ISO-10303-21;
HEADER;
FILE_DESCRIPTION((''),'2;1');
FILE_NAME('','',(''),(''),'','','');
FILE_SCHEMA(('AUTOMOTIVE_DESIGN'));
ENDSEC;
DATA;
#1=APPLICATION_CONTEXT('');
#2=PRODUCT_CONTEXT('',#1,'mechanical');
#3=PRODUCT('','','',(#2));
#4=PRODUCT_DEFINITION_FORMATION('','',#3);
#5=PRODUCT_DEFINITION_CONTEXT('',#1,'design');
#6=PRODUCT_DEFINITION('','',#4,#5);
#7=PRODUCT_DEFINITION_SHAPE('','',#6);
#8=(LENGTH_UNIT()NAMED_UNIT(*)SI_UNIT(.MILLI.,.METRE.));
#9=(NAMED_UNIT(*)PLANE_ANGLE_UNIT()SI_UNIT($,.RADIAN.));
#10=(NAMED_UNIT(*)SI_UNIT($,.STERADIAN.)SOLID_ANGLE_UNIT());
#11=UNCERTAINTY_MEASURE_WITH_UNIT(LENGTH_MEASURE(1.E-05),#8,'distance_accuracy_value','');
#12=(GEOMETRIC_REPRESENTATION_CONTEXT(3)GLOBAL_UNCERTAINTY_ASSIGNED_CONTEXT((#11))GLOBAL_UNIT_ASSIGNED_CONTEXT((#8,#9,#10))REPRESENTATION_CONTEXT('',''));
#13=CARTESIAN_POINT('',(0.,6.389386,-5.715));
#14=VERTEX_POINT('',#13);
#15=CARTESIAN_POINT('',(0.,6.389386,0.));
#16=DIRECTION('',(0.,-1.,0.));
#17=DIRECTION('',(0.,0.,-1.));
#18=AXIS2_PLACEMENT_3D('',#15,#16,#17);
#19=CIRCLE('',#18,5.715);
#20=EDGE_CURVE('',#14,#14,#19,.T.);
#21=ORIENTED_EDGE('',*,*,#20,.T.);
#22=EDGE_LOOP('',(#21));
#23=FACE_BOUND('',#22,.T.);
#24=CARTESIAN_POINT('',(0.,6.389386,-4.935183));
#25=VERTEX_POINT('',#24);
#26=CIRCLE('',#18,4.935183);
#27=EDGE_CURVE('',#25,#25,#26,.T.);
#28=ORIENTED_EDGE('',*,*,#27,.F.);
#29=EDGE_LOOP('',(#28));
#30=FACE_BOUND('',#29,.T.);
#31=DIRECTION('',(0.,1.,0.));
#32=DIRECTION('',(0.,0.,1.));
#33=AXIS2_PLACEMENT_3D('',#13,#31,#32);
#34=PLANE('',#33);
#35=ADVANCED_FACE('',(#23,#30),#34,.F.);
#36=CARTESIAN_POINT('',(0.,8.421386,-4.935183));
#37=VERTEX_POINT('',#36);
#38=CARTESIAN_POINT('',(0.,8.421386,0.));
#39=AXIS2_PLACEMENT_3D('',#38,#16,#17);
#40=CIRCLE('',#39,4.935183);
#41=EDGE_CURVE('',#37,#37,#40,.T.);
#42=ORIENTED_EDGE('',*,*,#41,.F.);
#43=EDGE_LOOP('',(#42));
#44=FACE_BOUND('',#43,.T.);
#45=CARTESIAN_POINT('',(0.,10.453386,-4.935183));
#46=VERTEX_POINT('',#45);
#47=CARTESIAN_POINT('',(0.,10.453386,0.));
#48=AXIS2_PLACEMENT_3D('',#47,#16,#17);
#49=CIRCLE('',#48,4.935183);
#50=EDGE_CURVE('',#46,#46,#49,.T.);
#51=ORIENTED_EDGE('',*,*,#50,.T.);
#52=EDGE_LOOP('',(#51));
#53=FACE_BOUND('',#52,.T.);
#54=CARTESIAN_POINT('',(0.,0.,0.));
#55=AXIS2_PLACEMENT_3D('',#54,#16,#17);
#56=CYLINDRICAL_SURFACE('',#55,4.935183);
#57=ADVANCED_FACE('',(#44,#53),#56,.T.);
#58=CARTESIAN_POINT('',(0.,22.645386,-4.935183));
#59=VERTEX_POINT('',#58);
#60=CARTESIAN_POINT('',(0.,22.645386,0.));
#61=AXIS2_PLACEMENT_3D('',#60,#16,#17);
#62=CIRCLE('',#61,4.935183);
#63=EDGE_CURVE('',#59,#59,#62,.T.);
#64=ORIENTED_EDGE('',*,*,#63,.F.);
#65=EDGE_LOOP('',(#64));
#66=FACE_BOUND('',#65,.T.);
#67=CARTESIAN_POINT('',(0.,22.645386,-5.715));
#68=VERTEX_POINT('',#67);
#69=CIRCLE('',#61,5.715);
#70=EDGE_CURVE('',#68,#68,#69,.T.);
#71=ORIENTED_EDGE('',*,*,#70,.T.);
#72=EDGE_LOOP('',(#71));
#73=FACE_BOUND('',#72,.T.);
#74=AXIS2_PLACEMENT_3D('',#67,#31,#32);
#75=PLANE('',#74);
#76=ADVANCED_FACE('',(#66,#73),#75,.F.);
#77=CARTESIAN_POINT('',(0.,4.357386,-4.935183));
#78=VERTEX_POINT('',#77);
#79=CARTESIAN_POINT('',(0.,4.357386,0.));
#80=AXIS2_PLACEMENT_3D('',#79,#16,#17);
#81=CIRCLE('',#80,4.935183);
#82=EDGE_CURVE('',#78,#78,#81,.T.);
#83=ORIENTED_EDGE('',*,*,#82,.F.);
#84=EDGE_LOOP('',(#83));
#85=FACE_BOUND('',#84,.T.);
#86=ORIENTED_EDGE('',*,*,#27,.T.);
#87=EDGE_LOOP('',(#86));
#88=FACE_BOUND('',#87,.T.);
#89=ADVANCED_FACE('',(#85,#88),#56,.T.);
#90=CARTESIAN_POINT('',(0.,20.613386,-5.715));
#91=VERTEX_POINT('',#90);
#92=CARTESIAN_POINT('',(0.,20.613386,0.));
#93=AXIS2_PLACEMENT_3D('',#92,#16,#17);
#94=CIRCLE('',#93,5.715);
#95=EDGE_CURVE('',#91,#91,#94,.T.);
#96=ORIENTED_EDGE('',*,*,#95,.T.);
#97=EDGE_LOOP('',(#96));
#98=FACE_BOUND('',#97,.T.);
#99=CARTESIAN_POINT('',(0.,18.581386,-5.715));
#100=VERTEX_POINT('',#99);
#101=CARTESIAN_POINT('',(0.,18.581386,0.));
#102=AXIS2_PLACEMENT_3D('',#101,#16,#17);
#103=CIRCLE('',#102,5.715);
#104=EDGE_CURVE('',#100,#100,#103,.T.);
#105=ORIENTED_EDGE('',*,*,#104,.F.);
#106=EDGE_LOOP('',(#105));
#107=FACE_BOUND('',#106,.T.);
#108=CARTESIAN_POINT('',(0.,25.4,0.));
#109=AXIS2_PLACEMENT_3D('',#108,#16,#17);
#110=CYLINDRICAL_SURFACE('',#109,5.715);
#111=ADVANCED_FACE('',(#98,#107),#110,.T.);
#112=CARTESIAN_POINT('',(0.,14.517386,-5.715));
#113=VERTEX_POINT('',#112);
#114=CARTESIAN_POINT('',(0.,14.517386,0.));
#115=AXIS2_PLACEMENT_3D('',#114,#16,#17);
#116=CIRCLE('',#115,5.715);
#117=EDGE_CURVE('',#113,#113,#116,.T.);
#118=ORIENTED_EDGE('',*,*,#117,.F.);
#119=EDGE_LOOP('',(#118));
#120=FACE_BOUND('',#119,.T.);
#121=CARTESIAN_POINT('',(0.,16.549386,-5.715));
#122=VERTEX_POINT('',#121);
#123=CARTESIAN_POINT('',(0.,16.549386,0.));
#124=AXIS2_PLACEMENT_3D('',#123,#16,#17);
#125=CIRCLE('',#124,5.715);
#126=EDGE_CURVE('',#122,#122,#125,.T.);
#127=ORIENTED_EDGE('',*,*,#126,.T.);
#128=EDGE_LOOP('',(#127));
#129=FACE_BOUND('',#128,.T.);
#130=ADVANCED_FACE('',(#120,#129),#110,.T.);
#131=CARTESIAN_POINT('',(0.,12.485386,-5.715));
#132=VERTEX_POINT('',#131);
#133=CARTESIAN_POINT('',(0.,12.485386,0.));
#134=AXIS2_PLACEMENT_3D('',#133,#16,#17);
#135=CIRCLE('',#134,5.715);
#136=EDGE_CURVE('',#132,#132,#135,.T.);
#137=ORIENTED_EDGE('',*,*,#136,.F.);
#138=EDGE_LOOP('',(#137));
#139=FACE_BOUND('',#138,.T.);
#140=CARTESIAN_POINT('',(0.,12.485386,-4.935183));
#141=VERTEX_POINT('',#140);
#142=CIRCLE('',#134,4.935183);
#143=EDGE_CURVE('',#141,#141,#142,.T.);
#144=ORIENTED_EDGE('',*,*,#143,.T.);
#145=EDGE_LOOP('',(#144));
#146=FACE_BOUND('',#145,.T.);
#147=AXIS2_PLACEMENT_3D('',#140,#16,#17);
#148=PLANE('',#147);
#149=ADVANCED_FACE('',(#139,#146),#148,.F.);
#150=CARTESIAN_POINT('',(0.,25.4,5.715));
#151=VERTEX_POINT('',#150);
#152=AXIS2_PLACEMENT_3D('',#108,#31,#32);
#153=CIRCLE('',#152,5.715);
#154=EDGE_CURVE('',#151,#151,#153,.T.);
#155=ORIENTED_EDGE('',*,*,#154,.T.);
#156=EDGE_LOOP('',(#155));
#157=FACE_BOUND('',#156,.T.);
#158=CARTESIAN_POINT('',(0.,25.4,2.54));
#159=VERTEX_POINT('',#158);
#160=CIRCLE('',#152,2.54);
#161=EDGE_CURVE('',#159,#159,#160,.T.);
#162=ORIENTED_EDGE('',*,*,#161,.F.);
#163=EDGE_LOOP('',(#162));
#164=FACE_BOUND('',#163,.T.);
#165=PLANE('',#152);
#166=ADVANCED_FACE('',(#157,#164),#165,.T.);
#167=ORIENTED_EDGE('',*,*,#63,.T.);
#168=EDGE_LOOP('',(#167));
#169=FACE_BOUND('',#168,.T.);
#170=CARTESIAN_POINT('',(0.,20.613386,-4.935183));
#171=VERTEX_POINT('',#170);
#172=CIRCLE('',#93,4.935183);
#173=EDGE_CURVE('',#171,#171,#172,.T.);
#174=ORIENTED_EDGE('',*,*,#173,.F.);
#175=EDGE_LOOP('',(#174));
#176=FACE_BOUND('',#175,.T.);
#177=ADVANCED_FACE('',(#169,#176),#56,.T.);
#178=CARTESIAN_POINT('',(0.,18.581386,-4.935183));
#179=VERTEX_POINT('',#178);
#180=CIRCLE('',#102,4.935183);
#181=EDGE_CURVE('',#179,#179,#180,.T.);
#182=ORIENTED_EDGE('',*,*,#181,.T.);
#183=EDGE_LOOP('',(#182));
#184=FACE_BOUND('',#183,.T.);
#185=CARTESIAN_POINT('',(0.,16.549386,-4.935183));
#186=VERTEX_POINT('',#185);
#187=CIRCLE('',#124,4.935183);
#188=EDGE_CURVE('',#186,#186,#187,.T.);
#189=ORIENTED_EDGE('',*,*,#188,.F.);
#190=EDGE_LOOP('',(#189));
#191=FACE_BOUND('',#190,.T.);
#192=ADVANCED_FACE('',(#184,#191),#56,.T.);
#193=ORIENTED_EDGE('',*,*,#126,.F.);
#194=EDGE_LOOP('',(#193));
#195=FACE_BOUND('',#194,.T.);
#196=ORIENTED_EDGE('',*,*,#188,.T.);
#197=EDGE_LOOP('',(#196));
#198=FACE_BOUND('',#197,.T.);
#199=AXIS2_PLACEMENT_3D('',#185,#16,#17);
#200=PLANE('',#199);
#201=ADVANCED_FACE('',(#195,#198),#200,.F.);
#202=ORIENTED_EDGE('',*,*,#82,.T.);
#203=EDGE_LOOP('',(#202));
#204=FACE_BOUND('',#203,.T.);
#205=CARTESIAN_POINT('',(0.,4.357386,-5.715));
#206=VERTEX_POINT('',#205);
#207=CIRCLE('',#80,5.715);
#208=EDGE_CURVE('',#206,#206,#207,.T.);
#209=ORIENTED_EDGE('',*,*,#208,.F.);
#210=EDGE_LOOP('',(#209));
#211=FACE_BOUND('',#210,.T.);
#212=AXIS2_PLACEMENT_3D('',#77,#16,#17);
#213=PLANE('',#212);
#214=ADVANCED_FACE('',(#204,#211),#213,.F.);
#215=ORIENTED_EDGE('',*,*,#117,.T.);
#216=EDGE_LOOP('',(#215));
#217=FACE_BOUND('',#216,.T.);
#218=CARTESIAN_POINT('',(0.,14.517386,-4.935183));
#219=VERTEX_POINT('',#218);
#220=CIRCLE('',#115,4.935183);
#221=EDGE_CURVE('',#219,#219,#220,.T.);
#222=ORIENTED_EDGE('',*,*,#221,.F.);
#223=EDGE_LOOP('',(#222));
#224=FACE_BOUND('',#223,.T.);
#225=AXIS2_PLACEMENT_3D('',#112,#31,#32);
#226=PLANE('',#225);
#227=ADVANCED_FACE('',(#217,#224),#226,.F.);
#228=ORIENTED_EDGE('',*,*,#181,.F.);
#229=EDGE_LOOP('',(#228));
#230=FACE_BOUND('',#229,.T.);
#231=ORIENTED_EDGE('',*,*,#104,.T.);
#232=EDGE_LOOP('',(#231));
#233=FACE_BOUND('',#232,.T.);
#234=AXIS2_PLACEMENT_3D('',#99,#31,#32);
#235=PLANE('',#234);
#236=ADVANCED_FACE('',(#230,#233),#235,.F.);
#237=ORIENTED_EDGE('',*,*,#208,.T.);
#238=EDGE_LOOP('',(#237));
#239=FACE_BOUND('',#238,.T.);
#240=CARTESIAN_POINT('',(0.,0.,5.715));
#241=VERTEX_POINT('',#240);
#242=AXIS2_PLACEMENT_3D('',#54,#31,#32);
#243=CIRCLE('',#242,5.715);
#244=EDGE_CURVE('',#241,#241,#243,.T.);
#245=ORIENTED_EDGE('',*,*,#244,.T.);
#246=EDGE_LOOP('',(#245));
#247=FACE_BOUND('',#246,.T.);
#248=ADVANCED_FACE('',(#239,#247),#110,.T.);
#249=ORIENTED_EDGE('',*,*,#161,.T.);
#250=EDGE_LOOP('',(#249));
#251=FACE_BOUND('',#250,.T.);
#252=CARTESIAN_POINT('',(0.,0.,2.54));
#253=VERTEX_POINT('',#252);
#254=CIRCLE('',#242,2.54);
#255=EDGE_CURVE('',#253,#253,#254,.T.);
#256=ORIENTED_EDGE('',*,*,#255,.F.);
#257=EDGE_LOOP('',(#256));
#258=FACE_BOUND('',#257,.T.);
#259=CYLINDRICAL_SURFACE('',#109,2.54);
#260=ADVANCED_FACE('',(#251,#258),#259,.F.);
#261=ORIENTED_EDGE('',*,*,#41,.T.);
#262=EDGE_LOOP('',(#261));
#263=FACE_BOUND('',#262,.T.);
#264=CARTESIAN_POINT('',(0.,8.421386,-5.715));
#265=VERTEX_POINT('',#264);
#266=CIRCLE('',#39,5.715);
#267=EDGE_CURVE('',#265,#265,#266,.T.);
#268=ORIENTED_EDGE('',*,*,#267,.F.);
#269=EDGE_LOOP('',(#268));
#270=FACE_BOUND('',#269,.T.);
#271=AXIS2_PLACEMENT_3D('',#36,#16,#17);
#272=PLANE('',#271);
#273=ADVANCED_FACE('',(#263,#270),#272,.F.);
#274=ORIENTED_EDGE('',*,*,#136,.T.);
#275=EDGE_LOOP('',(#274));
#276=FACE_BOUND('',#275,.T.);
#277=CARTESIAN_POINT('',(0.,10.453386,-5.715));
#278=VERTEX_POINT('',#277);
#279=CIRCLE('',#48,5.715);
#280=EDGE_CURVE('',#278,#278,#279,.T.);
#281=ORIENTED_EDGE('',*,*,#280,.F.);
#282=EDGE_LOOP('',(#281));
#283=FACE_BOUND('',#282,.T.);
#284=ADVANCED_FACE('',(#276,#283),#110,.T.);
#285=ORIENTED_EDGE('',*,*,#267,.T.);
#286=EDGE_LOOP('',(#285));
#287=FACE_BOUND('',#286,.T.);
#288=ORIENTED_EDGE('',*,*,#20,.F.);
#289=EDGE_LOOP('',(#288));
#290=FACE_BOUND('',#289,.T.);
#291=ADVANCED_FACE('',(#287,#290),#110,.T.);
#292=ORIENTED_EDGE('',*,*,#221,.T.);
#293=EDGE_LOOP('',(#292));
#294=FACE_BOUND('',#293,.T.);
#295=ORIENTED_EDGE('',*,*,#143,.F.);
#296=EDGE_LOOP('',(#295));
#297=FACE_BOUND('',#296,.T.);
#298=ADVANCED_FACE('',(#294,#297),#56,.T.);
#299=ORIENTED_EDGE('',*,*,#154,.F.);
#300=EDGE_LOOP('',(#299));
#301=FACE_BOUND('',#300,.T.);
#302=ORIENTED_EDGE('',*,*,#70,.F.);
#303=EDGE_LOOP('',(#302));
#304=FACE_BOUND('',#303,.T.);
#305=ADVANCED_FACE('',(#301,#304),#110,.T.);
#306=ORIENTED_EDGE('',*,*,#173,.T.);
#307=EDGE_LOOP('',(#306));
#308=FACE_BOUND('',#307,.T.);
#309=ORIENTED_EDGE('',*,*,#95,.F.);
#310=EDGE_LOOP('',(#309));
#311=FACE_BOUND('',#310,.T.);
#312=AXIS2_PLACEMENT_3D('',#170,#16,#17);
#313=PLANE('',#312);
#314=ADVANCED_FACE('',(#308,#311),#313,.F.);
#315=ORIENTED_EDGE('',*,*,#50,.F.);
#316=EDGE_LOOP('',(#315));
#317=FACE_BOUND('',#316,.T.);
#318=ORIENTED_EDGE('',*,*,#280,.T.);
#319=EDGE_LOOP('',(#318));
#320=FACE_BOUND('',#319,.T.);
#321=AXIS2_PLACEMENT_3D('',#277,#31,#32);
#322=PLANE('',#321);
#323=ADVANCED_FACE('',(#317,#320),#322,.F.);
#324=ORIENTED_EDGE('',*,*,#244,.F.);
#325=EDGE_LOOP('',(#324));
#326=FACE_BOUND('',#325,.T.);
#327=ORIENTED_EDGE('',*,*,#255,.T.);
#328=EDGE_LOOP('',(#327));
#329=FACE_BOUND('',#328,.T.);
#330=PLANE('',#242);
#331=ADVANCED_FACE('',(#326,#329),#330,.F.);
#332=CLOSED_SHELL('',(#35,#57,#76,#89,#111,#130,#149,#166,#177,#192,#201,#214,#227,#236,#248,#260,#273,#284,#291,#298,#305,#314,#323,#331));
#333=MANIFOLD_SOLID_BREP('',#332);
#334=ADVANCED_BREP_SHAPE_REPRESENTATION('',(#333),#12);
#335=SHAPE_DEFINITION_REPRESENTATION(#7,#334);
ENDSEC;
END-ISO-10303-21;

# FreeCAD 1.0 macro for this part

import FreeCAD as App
import Part
import Sketcher
from FreeCAD import Vector
Q = App.Units.Quantity


def add_polygon(sketch, points):
    """Adds a closed chain of lines whose ends are joined by coincident constraints."""
    first, n = sketch.GeometryCount, len(points)
    for a, b in zip(points, points[1:] + points[:1]):
        sketch.addGeometry(Part.LineSegment(App.Vector(*a, 0), App.Vector(*b, 0)), False)
    for i in range(n):
        sketch.addConstraint(Sketcher.Constraint("Coincident", first + i, 2, first + (i + 1) % n, 1))

doc = App.newDocument("Part")
body = doc.addObject("PartDesign::Body", "Body")

# Sketch on XZ plane
sketch1 = body.newObject("Sketcher::SketchObject", "Sketch")
sketch1.AttachmentSupport = (doc.getObject("XZ_Plane"), [""])
sketch1.MapMode = "FlatFace"
sketch1.addGeometry([
    Part.Circle(Vector(0, 0, 0), Vector(0, 0, 1), 5.7),
    Part.Circle(Vector(0, 0, 0), Vector(0, 0, 1), 2.5),
], False)
sketch1.addConstraint([
    Sketcher.Constraint("Coincident", 0, 3, -1, 1),
    Sketcher.Constraint("Coincident", 1, 3, -1, 1),
    Sketcher.Constraint("Diameter", 1, Q("0.2 in")),
    Sketcher.Constraint("Diameter", 0, Q("0.45 in")),
])
pad1 = body.newObject("PartDesign::Pad", "Pad")
pad1.Profile = sketch1
pad1.Length = Q("1 in")
pad1.Reversed = True

# Sketch on YZ plane
sketch2 = body.newObject("Sketcher::SketchObject", "Sketch001")
sketch2.AttachmentSupport = (doc.getObject("YZ_Plane"), [""])
sketch2.MapMode = "FlatFace"
add_polygon(sketch2, [(6.4, -4.9), (4.4, -4.9), (4.4, -5.7), (6.4, -5.7)])  # lines 0-3
add_polygon(sketch2, [(10.5, -4.9), (8.4, -4.9), (8.4, -5.7), (10.5, -5.7)])  # lines 4-7
add_polygon(sketch2, [(14.5, -4.9), (12.5, -4.9), (12.5, -5.7), (14.5, -5.7)])  # lines 8-11
add_polygon(sketch2, [(18.6, -4.9), (16.5, -4.9), (16.5, -5.7), (18.6, -5.7)])  # lines 12-15
add_polygon(sketch2, [(22.6, -4.9), (20.6, -4.9), (20.6, -5.7), (22.6, -5.7)])  # lines 16-19
sketch2.addConstraint([
    Sketcher.Constraint("Horizontal", 0),
    Sketcher.Constraint("Vertical", 1),
    Sketcher.Constraint("Horizontal", 2),
    Sketcher.Constraint("Vertical", 3),
    Sketcher.Constraint("Horizontal", 4),
    Sketcher.Constraint("Vertical", 5),
    Sketcher.Constraint("Horizontal", 6),
    Sketcher.Constraint("Vertical", 7),
    Sketcher.Constraint("Horizontal", 8),
    Sketcher.Constraint("Vertical", 9),
    Sketcher.Constraint("Horizontal", 10),
    Sketcher.Constraint("Vertical", 11),
    Sketcher.Constraint("Horizontal", 12),
    Sketcher.Constraint("Vertical", 13),
    Sketcher.Constraint("Horizontal", 14),
    Sketcher.Constraint("Vertical", 15),
    Sketcher.Constraint("Horizontal", 16),
    Sketcher.Constraint("Vertical", 17),
    Sketcher.Constraint("Horizontal", 18),
    Sketcher.Constraint("Vertical", 19),
    Sketcher.Constraint("Horizontal", 3, 2, 4, 2),
    Sketcher.Constraint("Horizontal", 2, 2, 5, 2),
    Sketcher.Constraint("Horizontal", 7, 2, 8, 2),
    Sketcher.Constraint("Horizontal", 6, 2, 9, 2),
    Sketcher.Constraint("Horizontal", 11, 2, 12, 2),
    Sketcher.Constraint("Horizontal", 10, 2, 13, 2),
    Sketcher.Constraint("Horizontal", 15, 2, 16, 2),
    Sketcher.Constraint("Horizontal", 14, 2, 17, 2),
    Sketcher.Constraint("Equal", 2, 4),
    Sketcher.Constraint("Equal", 6, 8),
    Sketcher.Constraint("Equal", 10, 12),
    Sketcher.Constraint("Equal", 14, 16),
    Sketcher.Constraint("DistanceX", 0, 2, 0, 1, Q("0.08 in")),
    Sketcher.Constraint("DistanceX", 3, 2, 4, 2, Q("0.08 in")),
    Sketcher.Constraint("DistanceX", 7, 2, 8, 2, Q("0.08 in")),
    Sketcher.Constraint("DistanceX", 11, 2, 12, 2, Q("0.08 in")),
    Sketcher.Constraint("DistanceX", 15, 2, 16, 2, Q("0.08 in")),
    Sketcher.Constraint("DistanceY", 1, 2, -1, 1, Q("0.225 in")),
    Sketcher.Constraint("DistanceY", 1, 2, 1, 1, Q("0.779817 mm")),
    Sketcher.Constraint("DistanceX", -1, 1, 0, 2, Q("4.357386 mm")),
])
groove = body.newObject("PartDesign::Groove", "Groove")
groove.Profile = sketch2
groove.ReferenceAxis = (sketch2, ["H_Axis"])
groove.Angle = 360

doc.recompute()
